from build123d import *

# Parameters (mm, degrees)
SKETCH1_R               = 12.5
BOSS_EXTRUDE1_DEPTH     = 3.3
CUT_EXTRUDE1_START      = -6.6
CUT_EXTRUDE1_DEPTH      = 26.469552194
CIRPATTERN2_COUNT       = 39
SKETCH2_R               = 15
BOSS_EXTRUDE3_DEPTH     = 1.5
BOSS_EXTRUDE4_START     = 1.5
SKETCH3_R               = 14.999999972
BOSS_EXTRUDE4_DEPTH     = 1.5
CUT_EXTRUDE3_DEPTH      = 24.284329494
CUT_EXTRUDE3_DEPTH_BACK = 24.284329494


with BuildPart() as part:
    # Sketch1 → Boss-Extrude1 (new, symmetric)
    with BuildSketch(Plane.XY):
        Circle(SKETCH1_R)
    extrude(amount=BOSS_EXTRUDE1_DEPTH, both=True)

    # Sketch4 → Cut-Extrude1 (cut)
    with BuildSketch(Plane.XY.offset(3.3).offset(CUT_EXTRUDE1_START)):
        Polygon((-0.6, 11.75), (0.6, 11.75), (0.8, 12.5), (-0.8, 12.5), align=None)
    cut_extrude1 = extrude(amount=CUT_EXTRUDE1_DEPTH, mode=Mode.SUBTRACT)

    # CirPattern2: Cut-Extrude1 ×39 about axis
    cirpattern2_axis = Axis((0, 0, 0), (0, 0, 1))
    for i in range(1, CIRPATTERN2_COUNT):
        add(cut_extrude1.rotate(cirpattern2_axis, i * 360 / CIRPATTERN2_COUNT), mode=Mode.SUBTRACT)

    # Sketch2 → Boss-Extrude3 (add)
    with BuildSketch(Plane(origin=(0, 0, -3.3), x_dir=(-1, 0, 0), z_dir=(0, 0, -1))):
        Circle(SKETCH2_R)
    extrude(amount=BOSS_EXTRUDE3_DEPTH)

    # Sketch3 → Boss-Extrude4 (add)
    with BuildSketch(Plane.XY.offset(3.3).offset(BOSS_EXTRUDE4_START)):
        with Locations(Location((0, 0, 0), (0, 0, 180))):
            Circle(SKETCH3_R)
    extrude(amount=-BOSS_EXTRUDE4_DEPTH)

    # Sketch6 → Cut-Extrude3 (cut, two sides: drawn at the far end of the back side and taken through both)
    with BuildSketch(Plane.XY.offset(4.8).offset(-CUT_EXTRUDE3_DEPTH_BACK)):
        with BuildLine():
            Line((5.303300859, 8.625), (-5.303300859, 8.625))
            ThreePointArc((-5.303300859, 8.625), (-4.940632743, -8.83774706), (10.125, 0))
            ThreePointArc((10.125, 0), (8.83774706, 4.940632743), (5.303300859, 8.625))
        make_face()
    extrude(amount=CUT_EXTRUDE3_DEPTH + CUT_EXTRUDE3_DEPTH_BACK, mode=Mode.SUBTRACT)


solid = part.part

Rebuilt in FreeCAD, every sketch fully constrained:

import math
import FreeCAD as App
import Part
import Sketcher
Q = App.Units.Quantity


def add_polygon(sketch, points):
    """Adds a closed chain of lines whose ends are joined by coincident constraints."""
    first, n = sketch.GeometryCount, len(points)
    for a, b in zip(points, points[1:] + points[:1]):
        sketch.addGeometry(Part.LineSegment(App.Vector(*a, 0), App.Vector(*b, 0)), False)
    for i in range(n):
        sketch.addConstraint(Sketcher.Constraint("Coincident", first + i, 2, first + (i + 1) % n, 1))

doc = App.newDocument("Part")
body = doc.addObject("PartDesign::Body", "Body")

# Sketch on XY plane
sketch1 = body.newObject("Sketcher::SketchObject", "Sketch")
sketch1.AttachmentSupport = (doc.getObject("XY_Plane"), [""])
sketch1.MapMode = "FlatFace"
sketch1.addGeometry(Part.Circle(App.Vector(0, 0, 0), App.Vector(0, 0, 1), 12.5), False)
sketch1.addConstraint([
    Sketcher.Constraint("Coincident", 0, 3, -1, 1),
    Sketcher.Constraint("Diameter", 0, Q("25 mm")),
])
pad1 = body.newObject("PartDesign::Pad", "Pad")
pad1.Profile = sketch1
pad1.Length = 6.6
pad1.Midplane = True

# Sketch on XY plane
sketch2 = body.newObject("Sketcher::SketchObject", "Sketch001")
sketch2.AttachmentSupport = (doc.getObject("XY_Plane"), [""])
sketch2.MapMode = "FlatFace"
sketch2.AttachmentOffset = App.Placement(App.Vector(0, 0, -3.3), App.Rotation())
add_polygon(sketch2, [(-0.6, 11.75), (0.6, 11.75), (0.8, 12.5), (-0.8, 12.5)])  # lines 0-3
sketch2.addConstraint([
    Sketcher.Constraint("Horizontal", 0),
    Sketcher.Constraint("Horizontal", 2),
    Sketcher.Constraint("Equal", 1, 3),
    Sketcher.Constraint("DistanceX", 0, 1, 0, 2, Q("1.2 mm")),
    Sketcher.Constraint("DistanceX", 2, 2, 2, 1, Q("1.6 mm")),
    Sketcher.Constraint("DistanceX", -1, 1, 0, 2, Q("0.6 mm")),
    Sketcher.Constraint("DistanceY", -1, 1, 1, 2, Q("12.5 mm")),
    Sketcher.Constraint("DistanceY", -1, 1, 0, 2, Q("11.75 mm")),
])
pocket1 = body.newObject("PartDesign::Pocket", "Pocket")
pocket1.Profile = sketch2
pocket1.Length = 26.469552
pocket1.Reversed = True
doc.recompute()

polarpattern = body.newObject("PartDesign::PolarPattern", "PolarPattern")
polarpattern.Originals = [pocket1]
polarpattern.Axis = (doc.getObject("Z_Axis"), [""])
polarpattern.Angle = 360
polarpattern.Occurrences = 39
body.Tip = polarpattern

# Sketch on XY plane
sketch3 = body.newObject("Sketcher::SketchObject", "Sketch002")
sketch3.AttachmentSupport = (doc.getObject("XY_Plane"), [""])
sketch3.MapMode = "FlatFace"
sketch3.AttachmentOffset = App.Placement(App.Vector(0, 0, -3.3), App.Rotation())
sketch3.addGeometry(Part.Circle(App.Vector(0, 0, 0), App.Vector(0, 0, 1), 15), False)
sketch3.addConstraint([
    Sketcher.Constraint("Coincident", 0, 3, -1, 1),
    Sketcher.Constraint("Diameter", 0, Q("30 mm")),
])
pad2 = body.newObject("PartDesign::Pad", "Pad001")
pad2.Profile = sketch3
pad2.Length = 1.5
pad2.Reversed = True

# Sketch on XY plane
sketch4 = body.newObject("Sketcher::SketchObject", "Sketch003")
sketch4.AttachmentSupport = (doc.getObject("XY_Plane"), [""])
sketch4.MapMode = "FlatFace"
sketch4.AttachmentOffset = App.Placement(App.Vector(0, 0, 4.8), App.Rotation())
sketch4.addGeometry(Part.Circle(App.Vector(0, 0, 0), App.Vector(0, 0, 1), 15), False)
sketch4.addConstraint([
    Sketcher.Constraint("Coincident", 0, 3, -1, 1),
    Sketcher.Constraint("Diameter", 0, Q("30 mm")),
])
pad3 = body.newObject("PartDesign::Pad", "Pad002")
pad3.Profile = sketch4
pad3.Length = 1.5
pad3.Reversed = True

# Sketch on XY plane
sketch5 = body.newObject("Sketcher::SketchObject", "Sketch004")
sketch5.AttachmentSupport = (doc.getObject("XY_Plane"), [""])
sketch5.MapMode = "FlatFace"
sketch5.AttachmentOffset = App.Placement(App.Vector(0, 0, 4.8), App.Rotation())
sketch5.addGeometry([
    Part.LineSegment(App.Vector(5.303301, 8.625, 0), App.Vector(-5.303301, 8.625, 0)),
    Part.ArcOfCircle(Part.Circle(App.Vector(0, 0, 0), App.Vector(0, 0, 1), 10.125), math.radians(121.586338), math.radians(360)),
    Part.ArcOfCircle(Part.Circle(App.Vector(0, 0, 0), App.Vector(0, 0, 1), 10.125), math.radians(0), math.radians(58.413662)),
], False)
sketch5.addConstraint([
    Sketcher.Constraint("Coincident", 0, 2, 1, 1),
    Sketcher.Constraint("Tangent", 1, 2, 2, 1),
    Sketcher.Constraint("Coincident", 2, 2, 0, 1),
    Sketcher.Constraint("Horizontal", 0),
    Sketcher.Constraint("Coincident", 1, 3, -1, 1),
    Sketcher.Constraint("Equal", 1, 2),
    Sketcher.Constraint("PointOnObject", 1, 2, -1),
    Sketcher.Constraint("Radius", 1, Q("10.125 mm")),
    Sketcher.Constraint("DistanceX", 0, 2, 0, 1, Q("10.606602 mm")),
])
pocket2 = body.newObject("PartDesign::Pocket", "Pocket001")
pocket2.Profile = sketch5
pocket2.Type = "ThroughAll"
pocket2.Midplane = True

doc.recompute()
